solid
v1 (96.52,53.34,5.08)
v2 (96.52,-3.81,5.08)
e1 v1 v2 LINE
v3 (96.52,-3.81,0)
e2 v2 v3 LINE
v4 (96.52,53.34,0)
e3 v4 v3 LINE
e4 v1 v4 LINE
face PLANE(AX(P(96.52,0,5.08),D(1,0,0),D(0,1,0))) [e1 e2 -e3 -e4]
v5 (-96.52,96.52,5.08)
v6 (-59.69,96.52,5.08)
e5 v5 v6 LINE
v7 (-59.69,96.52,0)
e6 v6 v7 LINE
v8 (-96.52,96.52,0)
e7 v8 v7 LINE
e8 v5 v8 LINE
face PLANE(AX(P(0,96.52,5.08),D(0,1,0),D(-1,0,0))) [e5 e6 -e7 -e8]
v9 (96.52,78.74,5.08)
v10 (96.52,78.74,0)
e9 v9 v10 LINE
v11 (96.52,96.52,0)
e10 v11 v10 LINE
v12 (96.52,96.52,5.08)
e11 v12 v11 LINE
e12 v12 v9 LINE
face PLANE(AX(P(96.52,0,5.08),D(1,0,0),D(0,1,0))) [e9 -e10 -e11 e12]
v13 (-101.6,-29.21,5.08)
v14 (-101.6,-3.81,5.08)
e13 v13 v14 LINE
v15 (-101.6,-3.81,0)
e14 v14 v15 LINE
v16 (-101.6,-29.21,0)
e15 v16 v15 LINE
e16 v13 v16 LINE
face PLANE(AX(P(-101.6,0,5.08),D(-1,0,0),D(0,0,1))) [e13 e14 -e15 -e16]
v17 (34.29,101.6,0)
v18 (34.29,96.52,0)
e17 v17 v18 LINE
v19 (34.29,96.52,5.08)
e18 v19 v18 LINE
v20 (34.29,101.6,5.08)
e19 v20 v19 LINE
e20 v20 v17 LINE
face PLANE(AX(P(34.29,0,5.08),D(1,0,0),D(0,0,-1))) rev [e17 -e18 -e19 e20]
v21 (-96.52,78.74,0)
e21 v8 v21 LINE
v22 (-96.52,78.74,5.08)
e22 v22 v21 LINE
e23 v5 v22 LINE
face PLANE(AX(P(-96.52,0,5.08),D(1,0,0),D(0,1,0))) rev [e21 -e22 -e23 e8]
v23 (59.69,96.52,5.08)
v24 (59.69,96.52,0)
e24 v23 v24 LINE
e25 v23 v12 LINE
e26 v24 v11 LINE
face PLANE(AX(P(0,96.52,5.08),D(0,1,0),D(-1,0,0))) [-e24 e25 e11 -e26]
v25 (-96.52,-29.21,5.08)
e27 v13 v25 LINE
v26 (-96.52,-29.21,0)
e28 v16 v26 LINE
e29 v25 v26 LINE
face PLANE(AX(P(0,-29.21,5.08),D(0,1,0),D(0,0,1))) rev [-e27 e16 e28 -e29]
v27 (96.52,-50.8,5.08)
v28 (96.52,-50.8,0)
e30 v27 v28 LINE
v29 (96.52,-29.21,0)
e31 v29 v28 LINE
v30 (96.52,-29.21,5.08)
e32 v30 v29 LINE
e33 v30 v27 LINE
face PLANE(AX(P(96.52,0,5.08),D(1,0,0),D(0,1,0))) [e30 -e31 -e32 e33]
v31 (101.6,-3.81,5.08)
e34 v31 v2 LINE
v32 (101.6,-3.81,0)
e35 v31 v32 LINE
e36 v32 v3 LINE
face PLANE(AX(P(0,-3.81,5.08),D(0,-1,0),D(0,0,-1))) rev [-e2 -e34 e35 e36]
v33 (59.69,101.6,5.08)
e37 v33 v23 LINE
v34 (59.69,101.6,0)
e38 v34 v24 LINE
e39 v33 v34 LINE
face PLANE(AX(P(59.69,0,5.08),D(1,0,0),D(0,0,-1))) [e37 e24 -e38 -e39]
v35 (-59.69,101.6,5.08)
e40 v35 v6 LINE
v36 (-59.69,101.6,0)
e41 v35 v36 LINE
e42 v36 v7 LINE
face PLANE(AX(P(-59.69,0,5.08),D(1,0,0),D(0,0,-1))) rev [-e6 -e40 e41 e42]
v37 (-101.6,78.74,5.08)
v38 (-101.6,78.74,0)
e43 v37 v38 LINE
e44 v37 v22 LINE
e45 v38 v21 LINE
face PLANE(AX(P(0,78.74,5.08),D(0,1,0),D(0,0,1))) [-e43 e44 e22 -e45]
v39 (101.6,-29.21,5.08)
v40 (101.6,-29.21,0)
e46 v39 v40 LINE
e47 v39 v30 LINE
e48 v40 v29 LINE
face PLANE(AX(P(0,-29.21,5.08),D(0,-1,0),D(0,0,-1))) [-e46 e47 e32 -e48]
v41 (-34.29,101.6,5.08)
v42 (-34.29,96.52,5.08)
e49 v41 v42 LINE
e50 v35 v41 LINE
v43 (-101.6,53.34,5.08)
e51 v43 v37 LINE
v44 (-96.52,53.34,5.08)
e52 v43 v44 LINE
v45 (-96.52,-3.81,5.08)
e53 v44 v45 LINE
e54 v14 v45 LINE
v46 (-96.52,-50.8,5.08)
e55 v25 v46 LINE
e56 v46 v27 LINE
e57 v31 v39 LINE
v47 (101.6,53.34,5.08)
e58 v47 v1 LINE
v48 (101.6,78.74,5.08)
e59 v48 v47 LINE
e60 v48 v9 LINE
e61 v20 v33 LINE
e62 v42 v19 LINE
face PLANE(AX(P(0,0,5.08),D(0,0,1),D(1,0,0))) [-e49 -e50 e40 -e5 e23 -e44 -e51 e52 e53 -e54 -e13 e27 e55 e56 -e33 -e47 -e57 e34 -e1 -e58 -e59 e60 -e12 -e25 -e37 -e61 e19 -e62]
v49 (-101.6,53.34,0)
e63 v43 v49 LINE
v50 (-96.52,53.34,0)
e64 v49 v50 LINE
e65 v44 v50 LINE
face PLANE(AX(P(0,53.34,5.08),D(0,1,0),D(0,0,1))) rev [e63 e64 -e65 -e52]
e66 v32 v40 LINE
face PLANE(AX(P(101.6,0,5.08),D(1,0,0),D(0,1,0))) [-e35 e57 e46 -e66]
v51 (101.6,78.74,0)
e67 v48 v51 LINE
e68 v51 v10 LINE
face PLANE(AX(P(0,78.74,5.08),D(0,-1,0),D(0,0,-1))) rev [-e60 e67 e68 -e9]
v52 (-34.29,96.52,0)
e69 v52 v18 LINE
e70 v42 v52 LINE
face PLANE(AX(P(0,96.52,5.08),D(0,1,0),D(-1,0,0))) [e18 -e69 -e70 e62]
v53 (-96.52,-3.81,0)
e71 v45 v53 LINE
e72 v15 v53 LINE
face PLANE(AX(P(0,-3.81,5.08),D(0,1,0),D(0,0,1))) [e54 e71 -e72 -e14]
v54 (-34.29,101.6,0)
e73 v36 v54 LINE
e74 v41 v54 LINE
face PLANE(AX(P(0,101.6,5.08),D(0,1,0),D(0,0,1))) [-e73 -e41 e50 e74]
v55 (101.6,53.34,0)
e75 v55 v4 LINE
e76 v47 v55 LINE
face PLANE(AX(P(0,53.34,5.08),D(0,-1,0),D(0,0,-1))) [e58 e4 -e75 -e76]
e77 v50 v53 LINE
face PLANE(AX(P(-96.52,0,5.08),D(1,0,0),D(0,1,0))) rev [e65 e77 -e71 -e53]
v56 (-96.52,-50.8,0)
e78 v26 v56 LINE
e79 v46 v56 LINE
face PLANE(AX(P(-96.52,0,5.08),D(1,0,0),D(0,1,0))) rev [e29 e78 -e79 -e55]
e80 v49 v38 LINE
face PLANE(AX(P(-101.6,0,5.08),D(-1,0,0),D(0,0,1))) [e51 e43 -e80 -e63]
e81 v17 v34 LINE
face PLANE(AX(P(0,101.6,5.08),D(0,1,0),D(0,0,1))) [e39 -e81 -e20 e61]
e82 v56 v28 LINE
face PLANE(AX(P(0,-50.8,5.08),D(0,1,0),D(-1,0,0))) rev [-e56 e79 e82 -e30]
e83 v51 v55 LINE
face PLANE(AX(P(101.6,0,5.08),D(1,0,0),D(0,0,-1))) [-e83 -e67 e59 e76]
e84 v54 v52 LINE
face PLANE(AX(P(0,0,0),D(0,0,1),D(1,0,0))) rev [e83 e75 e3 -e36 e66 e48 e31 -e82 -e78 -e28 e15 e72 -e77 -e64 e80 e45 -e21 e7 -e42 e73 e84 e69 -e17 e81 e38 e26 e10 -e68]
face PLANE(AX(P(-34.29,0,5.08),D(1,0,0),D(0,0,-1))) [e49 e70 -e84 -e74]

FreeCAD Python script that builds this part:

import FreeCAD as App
import Part
import Sketcher

V = App.Vector
Q = App.Units.Quantity

doc = App.newDocument("Part")
body = doc.addObject("PartDesign::Body", "Body")

sketch1 = body.newObject("Sketcher::SketchObject", "Sketch")
sketch1.AttachmentSupport = (doc.getObject("XY_Plane"), [""])
sketch1.MapMode = "FlatFace"
sketch1.addGeometry([
    Part.LineSegment(V(-97, -29, 0), V(-97, -51, 0)),
    Part.LineSegment(V(-97, -51, 0), V(97, -51, 0)),
    Part.LineSegment(V(97, -51, 0), V(97, -29, 0)),
    Part.LineSegment(V(97, -29, 0), V(102, -29, 0)),
    Part.LineSegment(V(102, -29, 0), V(102, -4, 0)),
    Part.LineSegment(V(102, -4, 0), V(97, -4, 0)),
    Part.LineSegment(V(97, -4, 0), V(97, 53, 0)),
    Part.LineSegment(V(97, 53, 0), V(102, 53, 0)),
    Part.LineSegment(V(102, 53, 0), V(102, 79, 0)),
    Part.LineSegment(V(102, 79, 0), V(97, 79, 0)),
    Part.LineSegment(V(97, 79, 0), V(97, 97, 0)),
    Part.LineSegment(V(97, 97, 0), V(60, 97, 0)),
    Part.LineSegment(V(60, 97, 0), V(60, 102, 0)),
    Part.LineSegment(V(60, 102, 0), V(34, 102, 0)),
    Part.LineSegment(V(34, 102, 0), V(34, 97, 0)),
    Part.LineSegment(V(34, 97, 0), V(-34, 97, 0)),
    Part.LineSegment(V(-34, 97, 0), V(-34, 102, 0)),
    Part.LineSegment(V(-34, 102, 0), V(-60, 102, 0)),
    Part.LineSegment(V(-60, 102, 0), V(-60, 97, 0)),
    Part.LineSegment(V(-60, 97, 0), V(-97, 97, 0)),
    Part.LineSegment(V(-97, 97, 0), V(-97, 79, 0)),
    Part.LineSegment(V(-97, 79, 0), V(-102, 79, 0)),
    Part.LineSegment(V(-102, 79, 0), V(-102, 53, 0)),
    Part.LineSegment(V(-102, 53, 0), V(-97, 53, 0)),
    Part.LineSegment(V(-97, 53, 0), V(-97, -4, 0)),
    Part.LineSegment(V(-97, -4, 0), V(-102, -4, 0)),
    Part.LineSegment(V(-102, -4, 0), V(-102, -29, 0)),
    Part.LineSegment(V(-102, -29, 0), V(-97, -29, 0)),
], False)
sketch1.addConstraint([
    Sketcher.Constraint("Coincident", 0, 2, 1, 1),
    Sketcher.Constraint("Coincident", 1, 2, 2, 1),
    Sketcher.Constraint("Coincident", 2, 2, 3, 1),
    Sketcher.Constraint("Coincident", 3, 2, 4, 1),
    Sketcher.Constraint("Coincident", 4, 2, 5, 1),
    Sketcher.Constraint("Coincident", 5, 2, 6, 1),
    Sketcher.Constraint("Coincident", 6, 2, 7, 1),
    Sketcher.Constraint("Coincident", 7, 2, 8, 1),
    Sketcher.Constraint("Coincident", 8, 2, 9, 1),
    Sketcher.Constraint("Coincident", 9, 2, 10, 1),
    Sketcher.Constraint("Coincident", 10, 2, 11, 1),
    Sketcher.Constraint("Coincident", 11, 2, 12, 1),
    Sketcher.Constraint("Coincident", 12, 2, 13, 1),
    Sketcher.Constraint("Coincident", 13, 2, 14, 1),
    Sketcher.Constraint("Coincident", 14, 2, 15, 1),
    Sketcher.Constraint("Coincident", 15, 2, 16, 1),
    Sketcher.Constraint("Coincident", 16, 2, 17, 1),
    Sketcher.Constraint("Coincident", 17, 2, 18, 1),
    Sketcher.Constraint("Coincident", 18, 2, 19, 1),
    Sketcher.Constraint("Coincident", 19, 2, 20, 1),
    Sketcher.Constraint("Coincident", 20, 2, 21, 1),
    Sketcher.Constraint("Coincident", 21, 2, 22, 1),
    Sketcher.Constraint("Coincident", 22, 2, 23, 1),
    Sketcher.Constraint("Coincident", 23, 2, 24, 1),
    Sketcher.Constraint("Coincident", 24, 2, 25, 1),
    Sketcher.Constraint("Coincident", 25, 2, 26, 1),
    Sketcher.Constraint("Coincident", 26, 2, 27, 1),
    Sketcher.Constraint("Coincident", 27, 2, 0, 1),
    Sketcher.Constraint("Vertical", 0),
    Sketcher.Constraint("Horizontal", 1),
    Sketcher.Constraint("Vertical", 2),
    Sketcher.Constraint("Horizontal", 3),
    Sketcher.Constraint("Vertical", 4),
    Sketcher.Constraint("Horizontal", 5),
    Sketcher.Constraint("Vertical", 6),
    Sketcher.Constraint("Horizontal", 7),
    Sketcher.Constraint("Vertical", 8),
    Sketcher.Constraint("Horizontal", 9),
    Sketcher.Constraint("Vertical", 10),
    Sketcher.Constraint("Horizontal", 11),
    Sketcher.Constraint("Vertical", 12),
    Sketcher.Constraint("Horizontal", 13),
    Sketcher.Constraint("Vertical", 14),
    Sketcher.Constraint("Horizontal", 15),
    Sketcher.Constraint("Vertical", 16),
    Sketcher.Constraint("Horizontal", 17),
    Sketcher.Constraint("Vertical", 18),
    Sketcher.Constraint("Horizontal", 19),
    Sketcher.Constraint("Vertical", 20),
    Sketcher.Constraint("Horizontal", 21),
    Sketcher.Constraint("Vertical", 22),
    Sketcher.Constraint("Horizontal", 23),
    Sketcher.Constraint("Vertical", 24),
    Sketcher.Constraint("Horizontal", 25),
    Sketcher.Constraint("Vertical", 26),
    Sketcher.Constraint("Horizontal", 27),
    Sketcher.Constraint("Symmetric", 13, 2, 16, 2, -2),
    Sketcher.Constraint("Symmetric", 11, 2, 18, 2, -2),
    Sketcher.Constraint("Symmetric", 9, 2, 20, 2, -2),
    Sketcher.Constraint("Symmetric", 7, 2, 22, 2, -2),
    Sketcher.Constraint("Symmetric", 5, 2, 24, 2, -2),
    Sketcher.Constraint("Symmetric", 3, 2, 26, 2, -2),
    Sketcher.Constraint("Horizontal", 11, 2, 14, 2),
    Sketcher.Constraint("Vertical", 2, 2, 5, 2),
    Sketcher.Constraint("Vertical", 4, 2, 7, 2),
    Sketcher.Constraint("Vertical", 6, 2, 9, 2),
    Sketcher.Constraint("Vertical", 0, 2, 19, 2),
    Sketcher.Constraint("Equal", 17, 4),
    Sketcher.Constraint("Equal", 4, 8),
    Sketcher.Constraint("Equal", 27, 12),
    Sketcher.Constraint("DistanceX", 13, 2, 13, 1, Q("1 in")),
    Sketcher.Constraint("DistanceX", 1, 1, 1, 2, Q("7.6 in")),
    Sketcher.Constraint("DistanceX", 3, 1, 3, 2, Q("0.2 in")),
    Sketcher.Constraint("DistanceX", 15, 2, 15, 1, Q("2.7 in")),
    Sketcher.Constraint("DistanceY", 10, 1, 10, 2, Q("0.7 in")),
    Sketcher.Constraint("DistanceY", 0, 2, -1, 1, Q("2 in")),
    Sketcher.Constraint("DistanceY", -1, 1, 12, 2, Q("4 in")),
    Sketcher.Constraint("DistanceY", 0, 2, 0, 1, Q("0.85 in")),
])
pad1 = body.newObject("PartDesign::Pad", "Pad")
pad1.Profile = sketch1
pad1.Length = Q("0.2 in")

doc.recompute()
